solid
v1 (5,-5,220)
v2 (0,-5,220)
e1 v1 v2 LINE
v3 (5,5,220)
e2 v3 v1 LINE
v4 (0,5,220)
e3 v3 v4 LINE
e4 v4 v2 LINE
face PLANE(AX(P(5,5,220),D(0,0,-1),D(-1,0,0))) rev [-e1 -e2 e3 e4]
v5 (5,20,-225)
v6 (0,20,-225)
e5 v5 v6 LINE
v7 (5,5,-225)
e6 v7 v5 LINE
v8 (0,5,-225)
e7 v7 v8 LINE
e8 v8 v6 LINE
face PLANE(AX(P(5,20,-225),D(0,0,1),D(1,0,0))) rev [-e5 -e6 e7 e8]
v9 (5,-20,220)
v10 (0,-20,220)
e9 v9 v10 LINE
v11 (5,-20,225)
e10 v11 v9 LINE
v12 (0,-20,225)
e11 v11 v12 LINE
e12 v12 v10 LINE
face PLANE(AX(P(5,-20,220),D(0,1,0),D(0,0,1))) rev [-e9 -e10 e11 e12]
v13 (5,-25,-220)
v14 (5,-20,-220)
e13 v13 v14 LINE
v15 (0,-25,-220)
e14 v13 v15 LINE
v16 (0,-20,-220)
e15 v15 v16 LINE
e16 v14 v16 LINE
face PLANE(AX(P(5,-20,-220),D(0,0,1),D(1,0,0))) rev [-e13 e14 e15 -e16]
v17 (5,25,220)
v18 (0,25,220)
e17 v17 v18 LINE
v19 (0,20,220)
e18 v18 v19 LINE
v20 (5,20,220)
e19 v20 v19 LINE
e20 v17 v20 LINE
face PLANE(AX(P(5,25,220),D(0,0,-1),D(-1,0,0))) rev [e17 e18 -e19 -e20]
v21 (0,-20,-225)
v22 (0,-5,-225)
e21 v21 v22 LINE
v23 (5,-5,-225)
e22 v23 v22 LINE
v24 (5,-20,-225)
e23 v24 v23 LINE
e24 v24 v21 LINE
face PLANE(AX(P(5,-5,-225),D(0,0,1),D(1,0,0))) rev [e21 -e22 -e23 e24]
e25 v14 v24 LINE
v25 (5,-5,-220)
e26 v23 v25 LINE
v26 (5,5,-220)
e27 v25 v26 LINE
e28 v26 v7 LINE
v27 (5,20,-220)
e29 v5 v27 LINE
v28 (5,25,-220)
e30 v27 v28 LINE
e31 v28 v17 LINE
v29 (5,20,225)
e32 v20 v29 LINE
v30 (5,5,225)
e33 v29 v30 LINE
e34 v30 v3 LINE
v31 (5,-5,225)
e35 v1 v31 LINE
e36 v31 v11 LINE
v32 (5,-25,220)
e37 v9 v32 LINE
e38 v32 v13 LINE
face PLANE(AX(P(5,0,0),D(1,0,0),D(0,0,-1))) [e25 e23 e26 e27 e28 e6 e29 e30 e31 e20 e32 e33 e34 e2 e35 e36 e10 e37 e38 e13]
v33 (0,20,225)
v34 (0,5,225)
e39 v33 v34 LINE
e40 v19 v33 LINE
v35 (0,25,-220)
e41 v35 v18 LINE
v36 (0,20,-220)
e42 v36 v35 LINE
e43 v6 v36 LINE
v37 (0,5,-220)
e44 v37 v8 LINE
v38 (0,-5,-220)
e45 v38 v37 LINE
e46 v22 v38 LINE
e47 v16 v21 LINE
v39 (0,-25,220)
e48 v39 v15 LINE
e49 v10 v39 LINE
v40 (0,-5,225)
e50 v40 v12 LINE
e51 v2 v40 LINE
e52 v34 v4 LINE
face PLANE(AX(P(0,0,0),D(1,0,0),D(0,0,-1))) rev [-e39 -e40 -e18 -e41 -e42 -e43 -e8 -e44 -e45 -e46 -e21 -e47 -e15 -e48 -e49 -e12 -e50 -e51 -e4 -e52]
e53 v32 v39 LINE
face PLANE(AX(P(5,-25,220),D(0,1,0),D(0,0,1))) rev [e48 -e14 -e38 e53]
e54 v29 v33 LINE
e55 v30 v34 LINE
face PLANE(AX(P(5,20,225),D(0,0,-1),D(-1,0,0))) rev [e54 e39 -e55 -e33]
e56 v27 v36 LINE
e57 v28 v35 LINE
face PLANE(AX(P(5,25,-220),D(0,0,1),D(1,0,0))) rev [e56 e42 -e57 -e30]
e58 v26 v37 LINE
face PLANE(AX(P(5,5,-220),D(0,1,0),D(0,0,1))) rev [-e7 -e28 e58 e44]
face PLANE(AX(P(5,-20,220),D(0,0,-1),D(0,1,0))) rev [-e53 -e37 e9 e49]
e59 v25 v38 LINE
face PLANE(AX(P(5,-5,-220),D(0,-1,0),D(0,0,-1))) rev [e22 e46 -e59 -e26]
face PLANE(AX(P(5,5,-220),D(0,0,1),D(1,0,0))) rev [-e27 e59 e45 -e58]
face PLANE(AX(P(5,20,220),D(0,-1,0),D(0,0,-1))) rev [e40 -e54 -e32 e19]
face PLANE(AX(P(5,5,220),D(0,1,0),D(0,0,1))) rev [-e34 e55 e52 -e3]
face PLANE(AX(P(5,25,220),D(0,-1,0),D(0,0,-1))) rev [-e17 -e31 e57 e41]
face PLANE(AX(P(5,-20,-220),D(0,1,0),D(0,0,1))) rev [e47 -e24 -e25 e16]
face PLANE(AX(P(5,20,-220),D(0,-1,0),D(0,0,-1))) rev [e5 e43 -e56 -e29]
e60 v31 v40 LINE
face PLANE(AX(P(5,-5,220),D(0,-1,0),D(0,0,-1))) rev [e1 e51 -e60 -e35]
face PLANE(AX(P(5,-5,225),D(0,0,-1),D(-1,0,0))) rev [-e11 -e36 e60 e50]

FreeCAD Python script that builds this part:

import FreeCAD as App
import Part
import Sketcher
from FreeCAD import Vector


def add_polygon(sketch, points):
    """Adds a closed chain of lines whose ends are joined by coincident constraints."""
    first, n = sketch.GeometryCount, len(points)
    for a, b in zip(points, points[1:] + points[:1]):
        sketch.addGeometry(Part.LineSegment(App.Vector(*a, 0), App.Vector(*b, 0)), False)
    for i in range(n):
        sketch.addConstraint(Sketcher.Constraint("Coincident", first + i, 2, first + (i + 1) % n, 1))

doc = App.newDocument("Part")
params = doc.addObject("Spreadsheet::Sheet", "Params")
for row, (alias, value) in enumerate([
    ("sketch1_width", "15 mm"),
    ("sketch1_width2", "10 mm"),
    ("sketch1_width3", "5 mm"),
    ("sketch1_height", "440 mm"),
    ("pad1_length", "5 mm"),
], start=1):
    params.set(f"A{row}", alias)
    params.set(f"B{row}", "=" + value)
    params.setAlias(f"B{row}", alias)

body = doc.addObject("PartDesign::Body", "Body")

# Sketch on YZ plane
sketch1 = doc.addObject("Sketcher::SketchObject", "Sketch")
body.addObject(sketch1)
sketch1.AttachmentSupport = (doc.YZ_Plane, [""])
sketch1.MapMode = "FlatFace"
add_polygon(sketch1, [(-20, -225), (-5, -225), (-5, -220), (5, -220), (5, -225), (20, -225), (20, -220), (25, -220), (25, 220), (20, 220), (20, 225), (5, 225), (5, 220), (-5, 220), (-5, 225), (-20, 225), (-20, 220), (-25, 220), (-25, -220), (-20, -220)])  # lines 0-19
sketch1.addConstraint([
    Sketcher.Constraint("Horizontal", 0),
    Sketcher.Constraint("Vertical", 1),
    Sketcher.Constraint("Horizontal", 2),
    Sketcher.Constraint("Vertical", 3),
    Sketcher.Constraint("Horizontal", 4),
    Sketcher.Constraint("Vertical", 5),
    Sketcher.Constraint("Horizontal", 6),
    Sketcher.Constraint("Vertical", 7),
    Sketcher.Constraint("Horizontal", 8),
    Sketcher.Constraint("Vertical", 9),
    Sketcher.Constraint("Horizontal", 10),
    Sketcher.Constraint("Vertical", 11),
    Sketcher.Constraint("Horizontal", 12),
    Sketcher.Constraint("Vertical", 13),
    Sketcher.Constraint("Horizontal", 14),
    Sketcher.Constraint("Vertical", 15),
    Sketcher.Constraint("Horizontal", 16),
    Sketcher.Constraint("Vertical", 17),
    Sketcher.Constraint("Horizontal", 18),
    Sketcher.Constraint("Vertical", 19),
    Sketcher.Constraint("Symmetric", 0, 2, 10, 2, -1, 1),
    Sketcher.Constraint("Symmetric", 2, 2, 12, 2, -1, 1),
    Sketcher.Constraint("Symmetric", 4, 2, 14, 2, -1, 1),
    Sketcher.Constraint("Symmetric", 6, 2, 16, 2, -1, 1),
    Sketcher.Constraint("Symmetric", 8, 2, 18, 2, -1, 1),
    Sketcher.Constraint("Symmetric", 0, 2, 3, 2, -2),
    Sketcher.Constraint("Symmetric", 8, 2, 15, 2, -2),
    Sketcher.Constraint("Horizontal", 2, 2, 5, 2),
    Sketcher.Constraint("Equal", 18, 1),
    Sketcher.Constraint("DistanceX", 0, 1, 0, 2, 15.0),
    Sketcher.Constraint("DistanceX", 2, 1, 2, 2, 10.0),
    Sketcher.Constraint("DistanceX", 6, 1, 6, 2, 5.0),
    Sketcher.Constraint("DistanceY", 7, 1, 7, 2, 440.0),
])
sketch1.setExpression("Constraints[49]", "Params.sketch1_width")
sketch1.setExpression("Constraints[50]", "Params.sketch1_width2")
sketch1.setExpression("Constraints[51]", "Params.sketch1_width3")
sketch1.setExpression("Constraints[52]", "Params.sketch1_height")
pad1 = doc.addObject("PartDesign::Pad", "Pad")
body.addObject(pad1)
pad1.Profile = sketch1
pad1.setExpression("Length", "Params.pad1_length")

doc.recompute()
